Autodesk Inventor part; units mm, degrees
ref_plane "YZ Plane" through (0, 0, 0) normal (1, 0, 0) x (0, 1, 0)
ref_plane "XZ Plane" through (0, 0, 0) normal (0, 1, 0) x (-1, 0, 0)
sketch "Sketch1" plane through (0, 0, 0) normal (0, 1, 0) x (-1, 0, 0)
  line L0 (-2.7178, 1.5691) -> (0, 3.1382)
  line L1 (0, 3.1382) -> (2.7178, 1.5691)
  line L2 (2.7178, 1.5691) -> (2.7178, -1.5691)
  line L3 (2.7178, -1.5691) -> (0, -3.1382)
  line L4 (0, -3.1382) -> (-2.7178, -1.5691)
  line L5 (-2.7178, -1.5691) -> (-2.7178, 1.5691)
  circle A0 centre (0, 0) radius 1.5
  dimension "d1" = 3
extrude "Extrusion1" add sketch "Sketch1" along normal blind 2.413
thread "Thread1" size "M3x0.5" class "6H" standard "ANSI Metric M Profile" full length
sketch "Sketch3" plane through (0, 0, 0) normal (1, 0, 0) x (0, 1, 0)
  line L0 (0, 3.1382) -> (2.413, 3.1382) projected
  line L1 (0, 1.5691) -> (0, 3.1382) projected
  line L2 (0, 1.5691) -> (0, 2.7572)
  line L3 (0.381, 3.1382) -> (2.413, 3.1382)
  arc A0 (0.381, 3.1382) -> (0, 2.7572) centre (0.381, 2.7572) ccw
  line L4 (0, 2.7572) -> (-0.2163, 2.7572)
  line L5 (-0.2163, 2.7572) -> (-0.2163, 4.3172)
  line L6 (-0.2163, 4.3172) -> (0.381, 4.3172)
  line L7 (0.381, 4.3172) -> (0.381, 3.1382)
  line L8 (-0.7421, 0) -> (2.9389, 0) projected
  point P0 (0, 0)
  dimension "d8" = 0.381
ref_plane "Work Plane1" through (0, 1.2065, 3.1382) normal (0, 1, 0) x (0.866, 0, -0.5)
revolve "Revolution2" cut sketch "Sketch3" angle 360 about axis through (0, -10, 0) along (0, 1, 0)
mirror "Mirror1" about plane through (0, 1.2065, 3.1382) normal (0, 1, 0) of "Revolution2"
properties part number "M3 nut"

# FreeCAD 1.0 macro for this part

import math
import FreeCAD as App
import Part
import Sketcher
Q = App.Units.Quantity

doc = App.newDocument("Part")
params = doc.addObject("Spreadsheet::Sheet", "Params")
for row, (alias, value) in enumerate([
    ("pad1_length", "0.095 in"),
    ("sketch2_radius", "0.015 in"),
    ("groove_angle", "360 deg"),
], start=1):
    params.set(f"A{row}", alias)
    params.set(f"B{row}", "=" + value)
    params.setAlias(f"B{row}", alias)

body = doc.addObject("PartDesign::Body", "Body")

# Sketch on XZ plane
sketch1 = doc.addObject("Sketcher::SketchObject", "Sketch")
body.addObject(sketch1)
sketch1.AttachmentSupport = (doc.XZ_Plane, [""])
sketch1.MapMode = "FlatFace"
sketch1.addGeometry([
    Part.LineSegment(App.Vector(0, 3.1382, 0), App.Vector(2.7178, 1.5691, 0)),  # 0
    Part.LineSegment(App.Vector(2.7178, 1.5691, 0), App.Vector(2.7178, -1.5691, 0)),  # 1
    Part.LineSegment(App.Vector(2.7178, -1.5691, 0), App.Vector(0, -3.1382, 0)),  # 2
    Part.LineSegment(App.Vector(0, -3.1382, 0), App.Vector(-2.7178, -1.5691, 0)),  # 3
    Part.LineSegment(App.Vector(-2.7178, -1.5691, 0), App.Vector(-2.7178, 1.5691, 0)),  # 4
    Part.LineSegment(App.Vector(-2.7178, 1.5691, 0), App.Vector(0, 3.1382, 0)),  # 5
    Part.Circle(App.Vector(0, 0, 0), App.Vector(0, 0, 1), 1.5),  # 6
], False)
sketch1.addConstraint([
    Sketcher.Constraint("Coincident", 0, 2, 1, 1),
    Sketcher.Constraint("Coincident", 1, 2, 2, 1),
    Sketcher.Constraint("Coincident", 2, 2, 3, 1),
    Sketcher.Constraint("Coincident", 3, 2, 4, 1),
    Sketcher.Constraint("Coincident", 4, 2, 5, 1),
    Sketcher.Constraint("Coincident", 5, 2, 0, 1),
    Sketcher.Constraint("Vertical", 1),
    Sketcher.Constraint("Vertical", 4),
    Sketcher.Constraint("Coincident", 6, 3, -1, 1),
    Sketcher.Constraint("Symmetric", 0, 2, 3, 2, -1, 1),
    Sketcher.Constraint("Symmetric", 2, 2, 5, 2, -1, 1),
    Sketcher.Constraint("PointOnObject", 2, 2, -2),
    Sketcher.Constraint("Parallel", 2, 5),
    Sketcher.Constraint("Horizontal", 1, 2, 3, 2),
    Sketcher.Constraint("Diameter", 6, Q("0.1181 in")),
    Sketcher.Constraint("Angle", 0, Q("-29.9996 deg")),
    Sketcher.Constraint("DistanceX", -1, 1, 0, 2, Q("0.107 in")),
    Sketcher.Constraint("DistanceY", 1, 2, 1, 1, 3.1382),
])
pad1 = doc.addObject("PartDesign::Pad", "Pad")
body.addObject(pad1)
pad1.Profile = sketch1
pad1.setExpression("Length", "Params.pad1_length")
pad1.Reversed = True

# Sketch on YZ plane
sketch2 = doc.addObject("Sketcher::SketchObject", "Sketch001")
body.addObject(sketch2)
sketch2.AttachmentSupport = (doc.YZ_Plane, [""])
sketch2.MapMode = "FlatFace"
sketch2.addGeometry([
    Part.LineSegment(App.Vector(-0.2163, 2.7572, 0), App.Vector(0, 2.7572, 0)),  # 0
    Part.ArcOfCircle(Part.Circle(App.Vector(0.381, 2.7572, 0), App.Vector(0, 0, 1), 0.381), math.radians(90), math.radians(180)),  # 1
    Part.LineSegment(App.Vector(0.381, 3.1382, 0), App.Vector(0.381, 4.3172, 0)),  # 2
    Part.LineSegment(App.Vector(0.381, 4.3172, 0), App.Vector(-0.2163, 4.3172, 0)),  # 3
    Part.LineSegment(App.Vector(-0.2163, 4.3172, 0), App.Vector(-0.2163, 2.7572, 0)),  # 4
], False)
sketch2.addConstraint([
    Sketcher.Constraint("Coincident", 0, 2, 1, 2),
    Sketcher.Constraint("Coincident", 1, 1, 2, 1),
    Sketcher.Constraint("Coincident", 2, 2, 3, 1),
    Sketcher.Constraint("Coincident", 3, 2, 4, 1),
    Sketcher.Constraint("Coincident", 4, 2, 0, 1),
    Sketcher.Constraint("Horizontal", 0),
    Sketcher.Constraint("Vertical", 2),
    Sketcher.Constraint("Horizontal", 3),
    Sketcher.Constraint("Vertical", 4),
    Sketcher.Constraint("PointOnObject", 0, 2, -2),
    Sketcher.Constraint("Horizontal", 1, 3, 0, 2),
    Sketcher.Constraint("Radius", 1, Q("0.015 in")),
    Sketcher.Constraint("DistanceX", -1, 1, 1, 1, Q("0.015 in")),
    Sketcher.Constraint("DistanceX", 0, 1, 0, 2, 0.2163),
    Sketcher.Constraint("DistanceY", 2, 1, 2, 2, 1.179),
    Sketcher.Constraint("DistanceY", -1, 1, 1, 3, 2.7572),
])
sketch2.setExpression("Constraints[11]", "Params.sketch2_radius")
groove = doc.addObject("PartDesign::Groove", "Groove")
body.addObject(groove)
groove.Profile = sketch2
groove.ReferenceAxis = (sketch2, ["H_Axis"])
groove.setExpression("Angle", "Params.groove_angle")
doc.recompute()

datumplane = doc.addObject("PartDesign::Plane", "DatumPlane")
body.addObject(datumplane)
datumplane.AttachmentSupport = (doc.XZ_Plane, [""])
datumplane.MapMode = "FlatFace"
datumplane.AttachmentOffset = App.Placement(App.Vector(0, 0, -0.0475 * 25.4), App.Rotation())
mirrored = doc.addObject("PartDesign::Mirrored", "Mirrored")
body.addObject(mirrored)
mirrored.Originals = [groove]
mirrored.MirrorPlane = (datumplane, [""])
body.Tip = mirrored

doc.recompute()
